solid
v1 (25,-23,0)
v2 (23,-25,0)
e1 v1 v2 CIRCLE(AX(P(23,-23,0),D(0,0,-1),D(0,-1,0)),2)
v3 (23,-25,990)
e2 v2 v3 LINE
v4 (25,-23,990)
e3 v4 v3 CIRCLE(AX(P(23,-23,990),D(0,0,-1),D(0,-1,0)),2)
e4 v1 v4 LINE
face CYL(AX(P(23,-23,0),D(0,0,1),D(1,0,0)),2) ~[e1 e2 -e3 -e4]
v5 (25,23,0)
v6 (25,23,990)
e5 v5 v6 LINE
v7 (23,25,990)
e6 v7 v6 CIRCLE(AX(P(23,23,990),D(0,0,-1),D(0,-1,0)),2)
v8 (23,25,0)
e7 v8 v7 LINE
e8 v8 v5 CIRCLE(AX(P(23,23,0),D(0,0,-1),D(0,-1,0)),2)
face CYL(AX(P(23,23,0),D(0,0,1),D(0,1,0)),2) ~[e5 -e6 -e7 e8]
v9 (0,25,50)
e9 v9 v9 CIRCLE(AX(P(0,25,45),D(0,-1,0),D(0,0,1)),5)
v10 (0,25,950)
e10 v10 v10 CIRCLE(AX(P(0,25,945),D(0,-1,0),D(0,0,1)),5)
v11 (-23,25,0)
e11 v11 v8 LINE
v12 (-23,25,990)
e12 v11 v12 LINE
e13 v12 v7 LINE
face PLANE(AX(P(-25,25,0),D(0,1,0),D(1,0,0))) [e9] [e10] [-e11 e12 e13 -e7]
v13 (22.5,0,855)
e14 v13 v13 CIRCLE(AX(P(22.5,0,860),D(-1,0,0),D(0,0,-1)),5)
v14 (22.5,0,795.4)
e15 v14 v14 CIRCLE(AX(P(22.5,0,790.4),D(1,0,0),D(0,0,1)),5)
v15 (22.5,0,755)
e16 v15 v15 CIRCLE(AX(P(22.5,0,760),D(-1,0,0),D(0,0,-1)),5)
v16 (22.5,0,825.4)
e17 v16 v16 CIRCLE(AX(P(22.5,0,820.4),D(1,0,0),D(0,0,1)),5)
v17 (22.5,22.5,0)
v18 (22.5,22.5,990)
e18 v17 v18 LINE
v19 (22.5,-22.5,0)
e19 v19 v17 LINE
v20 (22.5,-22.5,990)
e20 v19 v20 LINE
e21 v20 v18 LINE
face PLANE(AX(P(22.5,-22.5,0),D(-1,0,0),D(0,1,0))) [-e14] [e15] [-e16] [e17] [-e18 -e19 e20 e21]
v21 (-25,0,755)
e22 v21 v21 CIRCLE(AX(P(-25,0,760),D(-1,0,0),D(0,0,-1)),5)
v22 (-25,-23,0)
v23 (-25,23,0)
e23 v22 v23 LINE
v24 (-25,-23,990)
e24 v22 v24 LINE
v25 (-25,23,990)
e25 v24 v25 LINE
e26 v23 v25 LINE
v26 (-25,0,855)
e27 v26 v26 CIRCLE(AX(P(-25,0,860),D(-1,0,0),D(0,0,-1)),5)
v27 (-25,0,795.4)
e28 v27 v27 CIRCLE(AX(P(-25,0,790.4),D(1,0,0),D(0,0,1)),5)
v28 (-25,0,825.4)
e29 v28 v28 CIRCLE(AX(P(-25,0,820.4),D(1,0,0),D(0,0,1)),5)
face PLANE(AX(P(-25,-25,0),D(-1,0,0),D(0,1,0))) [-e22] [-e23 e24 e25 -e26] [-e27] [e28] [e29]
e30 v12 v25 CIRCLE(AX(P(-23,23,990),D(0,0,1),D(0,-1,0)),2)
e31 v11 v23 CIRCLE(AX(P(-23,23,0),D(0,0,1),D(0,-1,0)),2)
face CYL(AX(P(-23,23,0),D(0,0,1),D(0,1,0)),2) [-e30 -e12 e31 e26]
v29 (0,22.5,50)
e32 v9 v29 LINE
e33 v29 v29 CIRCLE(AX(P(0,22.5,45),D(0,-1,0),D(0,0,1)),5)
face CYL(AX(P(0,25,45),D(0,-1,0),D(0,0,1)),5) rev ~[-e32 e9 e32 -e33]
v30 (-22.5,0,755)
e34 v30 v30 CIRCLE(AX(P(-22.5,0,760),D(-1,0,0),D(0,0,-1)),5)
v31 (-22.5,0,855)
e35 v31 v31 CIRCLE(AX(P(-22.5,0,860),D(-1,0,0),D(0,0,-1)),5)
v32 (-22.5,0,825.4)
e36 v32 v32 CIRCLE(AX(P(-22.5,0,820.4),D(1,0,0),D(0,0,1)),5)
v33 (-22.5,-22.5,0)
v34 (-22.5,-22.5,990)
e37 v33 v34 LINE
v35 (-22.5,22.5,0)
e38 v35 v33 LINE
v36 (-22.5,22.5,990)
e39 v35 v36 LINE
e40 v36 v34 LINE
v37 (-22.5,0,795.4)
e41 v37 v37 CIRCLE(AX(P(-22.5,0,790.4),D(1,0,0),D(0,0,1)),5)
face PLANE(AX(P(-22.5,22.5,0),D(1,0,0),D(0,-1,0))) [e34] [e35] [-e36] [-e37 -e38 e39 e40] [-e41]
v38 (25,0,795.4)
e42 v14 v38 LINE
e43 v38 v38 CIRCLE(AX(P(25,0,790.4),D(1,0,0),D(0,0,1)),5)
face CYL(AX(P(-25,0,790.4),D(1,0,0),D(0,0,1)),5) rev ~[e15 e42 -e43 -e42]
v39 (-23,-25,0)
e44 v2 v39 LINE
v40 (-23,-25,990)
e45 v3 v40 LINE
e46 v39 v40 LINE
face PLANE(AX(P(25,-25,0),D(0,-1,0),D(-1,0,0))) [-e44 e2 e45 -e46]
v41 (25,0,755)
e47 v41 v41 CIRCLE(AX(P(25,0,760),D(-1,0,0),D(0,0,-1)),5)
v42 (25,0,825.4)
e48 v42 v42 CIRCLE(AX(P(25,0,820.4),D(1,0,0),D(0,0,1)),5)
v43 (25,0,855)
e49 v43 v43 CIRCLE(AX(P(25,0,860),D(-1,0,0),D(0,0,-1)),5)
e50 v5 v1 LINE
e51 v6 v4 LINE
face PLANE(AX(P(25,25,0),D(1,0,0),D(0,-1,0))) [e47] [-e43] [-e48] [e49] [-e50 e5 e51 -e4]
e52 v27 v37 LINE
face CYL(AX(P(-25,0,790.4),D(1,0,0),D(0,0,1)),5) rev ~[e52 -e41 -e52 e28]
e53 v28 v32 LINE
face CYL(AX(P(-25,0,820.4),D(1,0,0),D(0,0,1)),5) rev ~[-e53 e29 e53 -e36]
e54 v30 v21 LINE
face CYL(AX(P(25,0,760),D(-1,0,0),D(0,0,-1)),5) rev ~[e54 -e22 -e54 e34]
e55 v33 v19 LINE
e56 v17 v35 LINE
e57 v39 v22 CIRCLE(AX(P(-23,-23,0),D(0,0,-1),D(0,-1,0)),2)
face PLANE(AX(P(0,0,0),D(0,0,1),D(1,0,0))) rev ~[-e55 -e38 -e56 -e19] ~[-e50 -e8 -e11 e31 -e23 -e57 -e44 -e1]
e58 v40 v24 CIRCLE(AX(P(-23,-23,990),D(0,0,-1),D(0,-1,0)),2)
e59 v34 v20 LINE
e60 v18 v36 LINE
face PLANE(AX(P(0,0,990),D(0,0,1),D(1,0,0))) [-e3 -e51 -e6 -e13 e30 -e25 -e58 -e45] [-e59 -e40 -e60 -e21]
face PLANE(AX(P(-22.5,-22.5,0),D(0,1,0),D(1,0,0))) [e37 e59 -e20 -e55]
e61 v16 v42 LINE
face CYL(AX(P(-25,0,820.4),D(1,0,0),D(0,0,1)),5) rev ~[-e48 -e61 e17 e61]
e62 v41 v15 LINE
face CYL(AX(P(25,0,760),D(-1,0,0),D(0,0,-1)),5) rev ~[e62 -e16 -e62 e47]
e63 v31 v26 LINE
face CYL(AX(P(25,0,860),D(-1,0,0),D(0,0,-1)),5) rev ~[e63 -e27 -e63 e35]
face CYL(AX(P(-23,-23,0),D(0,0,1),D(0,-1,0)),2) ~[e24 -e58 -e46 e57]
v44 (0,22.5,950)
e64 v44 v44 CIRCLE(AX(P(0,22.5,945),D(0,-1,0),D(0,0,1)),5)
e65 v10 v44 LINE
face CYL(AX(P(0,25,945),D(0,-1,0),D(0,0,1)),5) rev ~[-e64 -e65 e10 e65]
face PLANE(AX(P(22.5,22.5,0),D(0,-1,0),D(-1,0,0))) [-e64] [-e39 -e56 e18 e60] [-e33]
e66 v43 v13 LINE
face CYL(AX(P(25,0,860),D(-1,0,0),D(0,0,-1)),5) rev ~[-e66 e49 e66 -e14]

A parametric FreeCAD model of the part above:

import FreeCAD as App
import Part
import Sketcher

V = App.Vector


def edges_at(feature, points):
    """Names of the edges that pass closest to the given points."""
    edges = feature.Shape.Edges
    near = lambda p: min(range(len(edges)), key=lambda i: edges[i].distToShape(Part.Vertex(*p))[0])
    return sorted({f"Edge{near(p) + 1}" for p in points})

doc = App.newDocument("Part")
body = doc.addObject("PartDesign::Body", "Body")

sketch1 = body.newObject("Sketcher::SketchObject", "Sketch")
sketch1.AttachmentSupport = (doc.getObject("XY_Plane"), [""])
sketch1.MapMode = "FlatFace"
sketch1.addGeometry([
    Part.LineSegment(V(25, 25, 0), V(-25, 25, 0)),
    Part.LineSegment(V(-25, 25, 0), V(-25, -25, 0)),
    Part.LineSegment(V(-25, -25, 0), V(25, -25, 0)),
    Part.LineSegment(V(25, -25, 0), V(25, 25, 0)),
    Part.LineSegment(V(-22, 22, 0), V(22, 22, 0)),
    Part.LineSegment(V(22, 22, 0), V(22, -22, 0)),
    Part.LineSegment(V(22, -22, 0), V(-22, -22, 0)),
    Part.LineSegment(V(-22, -22, 0), V(-22, 22, 0)),
], False)
sketch1.addConstraint([
    Sketcher.Constraint("Coincident", 0, 2, 1, 1),
    Sketcher.Constraint("Coincident", 1, 2, 2, 1),
    Sketcher.Constraint("Coincident", 2, 2, 3, 1),
    Sketcher.Constraint("Coincident", 3, 2, 0, 1),
    Sketcher.Constraint("Coincident", 4, 2, 5, 1),
    Sketcher.Constraint("Coincident", 5, 2, 6, 1),
    Sketcher.Constraint("Coincident", 6, 2, 7, 1),
    Sketcher.Constraint("Coincident", 7, 2, 4, 1),
    Sketcher.Constraint("Horizontal", 0),
    Sketcher.Constraint("Vertical", 1),
    Sketcher.Constraint("Horizontal", 2),
    Sketcher.Constraint("Vertical", 3),
    Sketcher.Constraint("Horizontal", 4),
    Sketcher.Constraint("Vertical", 5),
    Sketcher.Constraint("Horizontal", 6),
    Sketcher.Constraint("Vertical", 7),
    Sketcher.Constraint("Symmetric", 0, 2, 2, 2, -1, 1),
    Sketcher.Constraint("Symmetric", 4, 2, 6, 2, -1, 1),
    Sketcher.Constraint("Equal", 2, 1),
    Sketcher.Constraint("Equal", 6, 5),
    Sketcher.Constraint("DistanceX", 0, 2, 0, 1, 50.0),
    Sketcher.Constraint("DistanceX", 4, 2, 3, 2, 2.5),
])
pad1 = body.newObject("PartDesign::Pad", "Pad")
pad1.Profile = sketch1
pad1.Length = 990
doc.recompute()

fillet = body.newObject("PartDesign::Fillet", "Fillet")
fillet.Base = (pad1, edges_at(pad1, [
    (25, 25, 495),
    (-25, 25, 495),
    (25, -25, 495),
    (-25, -25, 495),
]))
fillet.Radius = 2

sketch2 = body.newObject("Sketcher::SketchObject", "Sketch001")
sketch2.AttachmentSupport = (doc.getObject("XZ_Plane"), [""])
sketch2.MapMode = "FlatFace"
sketch2.AttachmentOffset = App.Placement(V(0, 0, -25), App.Rotation())
sketch2.addGeometry([
    Part.Circle(V(0, 45, 0), V(0, 0, 1), 5),
    Part.Circle(V(0, 945, 0), V(0, 0, 1), 5),
], False)
sketch2.addConstraint([
    Sketcher.Constraint("Equal", 0, 1),
    Sketcher.Constraint("PointOnObject", 0, 3, -2),
    Sketcher.Constraint("PointOnObject", 1, 3, -2),
    Sketcher.Constraint("Diameter", 0, 10.0),
    Sketcher.Constraint("DistanceY", -1, 1, 0, 3, 45.0),
    Sketcher.Constraint("DistanceY", -1, 1, 1, 3, 945.0),
])
doc.recompute()
hole = body.newObject("PartDesign::Hole", "Hole")
hole.Profile = sketch2
hole.ThreadType = "None"
hole.Diameter = 10
hole.DepthType = "Dimension"
hole.Depth = 2.5
hole.DrillPoint = "Flat"
hole.Reversed = True

sketch3 = body.newObject("Sketcher::SketchObject", "Sketch002")
sketch3.AttachmentSupport = (doc.getObject("YZ_Plane"), [""])
sketch3.MapMode = "FlatFace"
sketch3.AttachmentOffset = App.Placement(V(0, 0, 25), App.Rotation())
sketch3.addGeometry([
    Part.Circle(V(0, 860, 0), V(0, 0, 1), 5),
    Part.Circle(V(0, 760, 0), V(0, 0, 1), 5),
], False)
sketch3.addConstraint([
    Sketcher.Constraint("Equal", 0, 1),
    Sketcher.Constraint("PointOnObject", 0, 3, -2),
    Sketcher.Constraint("PointOnObject", 1, 3, -2),
    Sketcher.Constraint("Diameter", 0, 10.0),
    Sketcher.Constraint("DistanceY", -1, 1, 0, 3, 860.0),
    Sketcher.Constraint("DistanceY", -1, 1, 1, 3, 760.0),
])
doc.recompute()
hole2 = body.newObject("PartDesign::Hole", "Hole001")
hole2.Profile = sketch3
hole2.ThreadType = "None"
hole2.Diameter = 10
hole2.DepthType = "ThroughAll"

sketch4 = body.newObject("Sketcher::SketchObject", "Sketch003")
sketch4.AttachmentSupport = (doc.getObject("YZ_Plane"), [""])
sketch4.MapMode = "FlatFace"
sketch4.AttachmentOffset = App.Placement(V(0, 0, -25), App.Rotation())
sketch4.addGeometry([
    Part.Circle(V(0, 790, 0), V(0, 0, 1), 5),
    Part.Circle(V(0, 820, 0), V(0, 0, 1), 5),
], False)
sketch4.addConstraint([
    Sketcher.Constraint("Equal", 0, 1),
    Sketcher.Constraint("PointOnObject", 0, 3, -2),
    Sketcher.Constraint("PointOnObject", 1, 3, -2),
    Sketcher.Constraint("Diameter", 0, 10.0),
    Sketcher.Constraint("DistanceY", 0, 3, 1, 3, 30.0),
    Sketcher.Constraint("DistanceY", -1, 1, 0, 3, 790.4),
])
doc.recompute()
hole3 = body.newObject("PartDesign::Hole", "Hole002")
hole3.Profile = sketch4
hole3.ThreadType = "None"
hole3.Diameter = 10
hole3.DepthType = "ThroughAll"
hole3.Reversed = True

doc.recompute()
